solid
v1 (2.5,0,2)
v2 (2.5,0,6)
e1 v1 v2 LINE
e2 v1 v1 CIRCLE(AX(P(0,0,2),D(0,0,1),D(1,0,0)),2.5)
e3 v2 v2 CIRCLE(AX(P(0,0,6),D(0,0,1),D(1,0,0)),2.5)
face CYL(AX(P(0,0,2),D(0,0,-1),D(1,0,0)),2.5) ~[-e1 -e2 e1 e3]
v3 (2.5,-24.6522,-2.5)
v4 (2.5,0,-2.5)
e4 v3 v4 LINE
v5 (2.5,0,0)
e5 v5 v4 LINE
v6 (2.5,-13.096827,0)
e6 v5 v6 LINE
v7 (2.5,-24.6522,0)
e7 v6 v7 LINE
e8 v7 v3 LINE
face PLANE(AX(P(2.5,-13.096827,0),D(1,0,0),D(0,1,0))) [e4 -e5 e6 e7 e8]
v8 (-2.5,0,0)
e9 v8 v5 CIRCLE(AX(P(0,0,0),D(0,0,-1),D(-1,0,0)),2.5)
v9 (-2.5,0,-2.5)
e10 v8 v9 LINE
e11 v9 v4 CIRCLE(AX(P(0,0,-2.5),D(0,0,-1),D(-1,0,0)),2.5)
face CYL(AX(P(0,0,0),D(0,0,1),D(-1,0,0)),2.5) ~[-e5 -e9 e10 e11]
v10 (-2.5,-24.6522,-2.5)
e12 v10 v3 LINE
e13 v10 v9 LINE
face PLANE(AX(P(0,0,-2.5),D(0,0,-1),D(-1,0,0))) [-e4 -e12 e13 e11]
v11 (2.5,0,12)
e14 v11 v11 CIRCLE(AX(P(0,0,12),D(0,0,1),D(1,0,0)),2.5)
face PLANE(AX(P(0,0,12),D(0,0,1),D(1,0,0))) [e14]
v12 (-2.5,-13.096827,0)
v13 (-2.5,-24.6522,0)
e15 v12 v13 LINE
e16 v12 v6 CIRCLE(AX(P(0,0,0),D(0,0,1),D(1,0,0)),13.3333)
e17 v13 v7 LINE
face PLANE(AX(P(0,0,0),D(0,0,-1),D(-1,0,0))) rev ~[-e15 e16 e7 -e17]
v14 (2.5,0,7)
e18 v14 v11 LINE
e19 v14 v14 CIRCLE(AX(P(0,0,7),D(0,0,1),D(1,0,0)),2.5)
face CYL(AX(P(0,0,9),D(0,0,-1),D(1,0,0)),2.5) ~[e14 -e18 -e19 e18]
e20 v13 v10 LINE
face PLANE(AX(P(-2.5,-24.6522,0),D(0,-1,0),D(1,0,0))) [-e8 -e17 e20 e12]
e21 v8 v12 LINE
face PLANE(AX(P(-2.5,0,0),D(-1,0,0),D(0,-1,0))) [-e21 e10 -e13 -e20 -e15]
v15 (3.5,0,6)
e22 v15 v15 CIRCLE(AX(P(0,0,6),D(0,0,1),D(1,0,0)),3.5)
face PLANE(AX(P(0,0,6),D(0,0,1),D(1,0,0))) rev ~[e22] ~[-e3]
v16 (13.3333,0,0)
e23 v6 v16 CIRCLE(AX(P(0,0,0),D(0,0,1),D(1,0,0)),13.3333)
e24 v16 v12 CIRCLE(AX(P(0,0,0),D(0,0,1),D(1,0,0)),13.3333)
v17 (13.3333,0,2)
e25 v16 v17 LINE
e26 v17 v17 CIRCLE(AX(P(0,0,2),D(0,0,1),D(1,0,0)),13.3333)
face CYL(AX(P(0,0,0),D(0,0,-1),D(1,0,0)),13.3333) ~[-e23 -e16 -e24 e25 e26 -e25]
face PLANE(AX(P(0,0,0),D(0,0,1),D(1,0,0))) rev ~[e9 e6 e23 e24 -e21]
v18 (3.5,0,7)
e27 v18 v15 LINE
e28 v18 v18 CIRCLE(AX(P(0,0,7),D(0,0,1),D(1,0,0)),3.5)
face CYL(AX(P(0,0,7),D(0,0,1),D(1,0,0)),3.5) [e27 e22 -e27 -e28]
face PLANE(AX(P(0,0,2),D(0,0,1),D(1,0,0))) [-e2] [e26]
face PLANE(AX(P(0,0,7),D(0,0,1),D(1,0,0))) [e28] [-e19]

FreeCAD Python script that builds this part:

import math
import FreeCAD as App
import Part
import Sketcher

doc = App.newDocument("Part")
body = doc.addObject("PartDesign::Body", "Body")

sketch1 = body.newObject("Sketcher::SketchObject", "Sketch")
sketch1.AttachmentSupport = (doc.getObject("XY_Plane"), [""])
sketch1.MapMode = "FlatFace"
sketch1.addGeometry(Part.Circle(App.Vector(0, 0, 0), App.Vector(0, 0, 1), 13), False)
sketch1.addConstraint([
    Sketcher.Constraint("Coincident", 0, 3, -1, 1),
    Sketcher.Constraint("Diameter", 0, 26.6666),
])
pad1 = body.newObject("PartDesign::Pad", "Pad")
pad1.Profile = sketch1
pad1.Length = 2

sketch2 = body.newObject("Sketcher::SketchObject", "Sketch001")
sketch2.AttachmentSupport = (doc.getObject("XY_Plane"), [""])
sketch2.MapMode = "FlatFace"
sketch2.AttachmentOffset = App.Placement(App.Vector(0, 0, 2), App.Rotation())
sketch2.addGeometry(Part.Circle(App.Vector(0, 0, 0), App.Vector(0, 0, 1), 2.5), False)
sketch2.addConstraint([
    Sketcher.Constraint("Coincident", 0, 3, -1, 1),
    Sketcher.Constraint("Diameter", 0, 5.0),
])
pad2 = body.newObject("PartDesign::Pad", "Pad001")
pad2.Profile = sketch2
pad2.Length = 7

sketch3 = body.newObject("Sketcher::SketchObject", "Sketch002")
sketch3.AttachmentSupport = (doc.getObject("XY_Plane"), [""])
sketch3.MapMode = "FlatFace"
sketch3.AttachmentOffset = App.Placement(App.Vector(0, 0, 7), App.Rotation())
sketch3.addGeometry([
    Part.Circle(App.Vector(0, 0, 0), App.Vector(0, 0, 1), 3.5),
    Part.Circle(App.Vector(0, 0, 0), App.Vector(0, 0, 1), 2.5),
], False)
sketch3.addConstraint([
    Sketcher.Constraint("Coincident", 0, 3, -1, 1),
    Sketcher.Constraint("Coincident", 1, 3, -1, 1),
    Sketcher.Constraint("Diameter", 0, 7.0),
    Sketcher.Constraint("Diameter", 1, 5.0),
])
pad3 = body.newObject("PartDesign::Pad", "Pad002")
pad3.Profile = sketch3
pad3.Length = 1
pad3.Reversed = True

sketch4 = body.newObject("Sketcher::SketchObject", "Sketch003")
sketch4.AttachmentSupport = (doc.getObject("XY_Plane"), [""])
sketch4.MapMode = "FlatFace"
sketch4.addGeometry([
    Part.LineSegment(App.Vector(2.5, 0, 0), App.Vector(2.5, -24.7, 0)),
    Part.LineSegment(App.Vector(2.5, -24.7, 0), App.Vector(-2.5, -24.7, 0)),
    Part.LineSegment(App.Vector(-2.5, -24.7, 0), App.Vector(-2.5, 0, 0)),
    Part.ArcOfCircle(Part.Circle(App.Vector(0, 0, 0), App.Vector(0, 0, 1), 2.5), math.radians(0), math.radians(180)),
], False)
sketch4.addConstraint([
    Sketcher.Constraint("Coincident", 0, 2, 1, 1),
    Sketcher.Constraint("Coincident", 1, 2, 2, 1),
    Sketcher.Constraint("Tangent", 2, 2, 3, 2),
    Sketcher.Constraint("Tangent", 3, 1, 0, 1),
    Sketcher.Constraint("Vertical", 0),
    Sketcher.Constraint("Horizontal", 1),
    Sketcher.Constraint("Vertical", 2),
    Sketcher.Constraint("Coincident", 3, 3, -1, 1),
    Sketcher.Constraint("Radius", 3, 2.5),
    Sketcher.Constraint("DistanceY", 0, 2, 0, 1, 24.6522),
])
pad4 = body.newObject("PartDesign::Pad", "Pad003")
pad4.Profile = sketch4
pad4.Length = 2.5
pad4.Reversed = True

sketch5 = body.newObject("Sketcher::SketchObject", "Sketch004")
sketch5.AttachmentSupport = (doc.getObject("XY_Plane"), [""])
sketch5.MapMode = "FlatFace"
sketch5.AttachmentOffset = App.Placement(App.Vector(0, 0, 9), App.Rotation())
sketch5.addGeometry(Part.Circle(App.Vector(0, 0, 0), App.Vector(0, 0, 1), 2.5), False)
sketch5.addConstraint([
    Sketcher.Constraint("Coincident", 0, 3, -1, 1),
    Sketcher.Constraint("Diameter", 0, 5.0),
])
pad5 = body.newObject("PartDesign::Pad", "Pad004")
pad5.Profile = sketch5
pad5.Length = 3

doc.recompute()
